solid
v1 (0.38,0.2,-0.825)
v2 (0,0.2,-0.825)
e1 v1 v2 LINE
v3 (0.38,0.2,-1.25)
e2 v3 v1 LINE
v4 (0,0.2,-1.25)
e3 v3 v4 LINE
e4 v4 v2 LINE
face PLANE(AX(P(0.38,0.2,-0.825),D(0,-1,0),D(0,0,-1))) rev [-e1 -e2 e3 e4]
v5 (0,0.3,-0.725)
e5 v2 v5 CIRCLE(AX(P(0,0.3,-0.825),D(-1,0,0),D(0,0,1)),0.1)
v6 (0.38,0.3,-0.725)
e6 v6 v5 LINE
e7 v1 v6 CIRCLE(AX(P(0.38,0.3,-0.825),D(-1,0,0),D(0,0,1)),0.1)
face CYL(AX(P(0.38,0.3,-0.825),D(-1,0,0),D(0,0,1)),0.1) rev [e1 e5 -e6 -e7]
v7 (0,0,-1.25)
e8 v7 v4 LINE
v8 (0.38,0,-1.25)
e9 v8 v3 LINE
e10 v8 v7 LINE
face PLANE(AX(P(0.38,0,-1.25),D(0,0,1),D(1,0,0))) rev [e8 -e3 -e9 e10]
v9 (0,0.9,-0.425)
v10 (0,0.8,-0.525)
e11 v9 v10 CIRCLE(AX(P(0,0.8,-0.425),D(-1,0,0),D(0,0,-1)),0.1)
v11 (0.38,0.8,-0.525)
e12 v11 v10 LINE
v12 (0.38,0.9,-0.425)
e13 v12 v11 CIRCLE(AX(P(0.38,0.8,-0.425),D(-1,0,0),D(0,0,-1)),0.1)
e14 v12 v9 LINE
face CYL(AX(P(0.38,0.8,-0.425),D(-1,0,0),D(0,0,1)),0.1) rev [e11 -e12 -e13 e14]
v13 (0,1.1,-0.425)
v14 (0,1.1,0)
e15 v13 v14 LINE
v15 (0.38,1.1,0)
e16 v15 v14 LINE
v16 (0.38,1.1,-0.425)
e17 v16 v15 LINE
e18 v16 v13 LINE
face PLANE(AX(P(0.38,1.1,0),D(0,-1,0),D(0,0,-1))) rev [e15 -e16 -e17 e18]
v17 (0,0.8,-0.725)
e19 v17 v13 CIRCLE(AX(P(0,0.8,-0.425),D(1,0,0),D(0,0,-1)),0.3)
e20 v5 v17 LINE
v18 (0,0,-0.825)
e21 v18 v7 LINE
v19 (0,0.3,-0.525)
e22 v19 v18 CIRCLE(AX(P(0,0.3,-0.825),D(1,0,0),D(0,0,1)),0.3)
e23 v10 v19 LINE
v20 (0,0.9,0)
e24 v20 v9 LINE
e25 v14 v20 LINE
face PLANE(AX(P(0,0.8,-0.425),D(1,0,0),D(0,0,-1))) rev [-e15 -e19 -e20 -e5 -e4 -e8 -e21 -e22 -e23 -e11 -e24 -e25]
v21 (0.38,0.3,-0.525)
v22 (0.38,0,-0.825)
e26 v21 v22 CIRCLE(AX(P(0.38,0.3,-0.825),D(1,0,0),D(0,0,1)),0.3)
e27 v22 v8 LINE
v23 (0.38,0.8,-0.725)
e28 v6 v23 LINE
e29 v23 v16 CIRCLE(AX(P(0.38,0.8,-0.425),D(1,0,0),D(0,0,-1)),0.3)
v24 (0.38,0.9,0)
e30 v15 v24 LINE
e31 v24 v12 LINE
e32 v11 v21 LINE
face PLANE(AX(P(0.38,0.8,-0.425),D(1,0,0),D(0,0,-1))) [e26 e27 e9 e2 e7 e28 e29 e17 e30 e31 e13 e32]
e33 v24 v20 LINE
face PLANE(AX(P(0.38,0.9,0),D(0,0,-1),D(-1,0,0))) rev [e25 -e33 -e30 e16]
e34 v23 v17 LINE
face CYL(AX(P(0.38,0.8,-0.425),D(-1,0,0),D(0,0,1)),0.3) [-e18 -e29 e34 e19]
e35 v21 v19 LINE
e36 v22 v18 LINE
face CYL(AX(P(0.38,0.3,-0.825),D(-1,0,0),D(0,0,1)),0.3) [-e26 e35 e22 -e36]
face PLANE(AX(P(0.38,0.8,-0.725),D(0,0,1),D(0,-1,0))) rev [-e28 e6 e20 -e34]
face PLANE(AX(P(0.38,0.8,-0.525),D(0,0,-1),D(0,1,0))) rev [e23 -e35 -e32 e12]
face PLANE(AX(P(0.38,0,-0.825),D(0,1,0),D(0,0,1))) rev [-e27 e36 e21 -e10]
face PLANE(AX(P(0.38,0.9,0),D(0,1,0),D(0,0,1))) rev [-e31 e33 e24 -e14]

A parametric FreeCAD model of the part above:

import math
import FreeCAD as App
import Part
import Sketcher

doc = App.newDocument("Part")
body = doc.addObject("PartDesign::Body", "Body")

sketch1 = body.newObject("Sketcher::SketchObject", "Sketch")
sketch1.AttachmentSupport = (doc.getObject("YZ_Plane"), [""])
sketch1.MapMode = "FlatFace"
sketch1.addGeometry([
    Part.LineSegment(App.Vector(0.9, 0, 0), App.Vector(0.9, -0.42, 0)),
    Part.ArcOfCircle(Part.Circle(App.Vector(0.8, -0.42, 0), App.Vector(0, 0, 1), 0.1), math.radians(-90), math.radians(0)),
    Part.LineSegment(App.Vector(0.8, -0.53, 0), App.Vector(0.3, -0.53, 0)),
    Part.ArcOfCircle(Part.Circle(App.Vector(0.3, -0.83, 0), App.Vector(0, 0, 1), 0.3), math.radians(90), math.radians(180)),
    Part.LineSegment(App.Vector(0, -0.82, 0), App.Vector(0, -1.25, 0)),
    Part.LineSegment(App.Vector(0, -1.25, 0), App.Vector(0.2, -1.25, 0)),
    Part.LineSegment(App.Vector(0.2, -1.25, 0), App.Vector(0.2, -0.82, 0)),
    Part.ArcOfCircle(Part.Circle(App.Vector(0.3, -0.82, 0), App.Vector(0, 0, 1), 0.1), math.radians(90), math.radians(180)),
    Part.LineSegment(App.Vector(0.3, -0.72, 0), App.Vector(0.8, -0.72, 0)),
    Part.ArcOfCircle(Part.Circle(App.Vector(0.8, -0.42, 0), App.Vector(0, 0, 1), 0.3), math.radians(-90), math.radians(0)),
    Part.LineSegment(App.Vector(1.1, -0.42, 0), App.Vector(1.1, 0, 0)),
    Part.LineSegment(App.Vector(1.1, 0, 0), App.Vector(0.9, 0, 0)),
], False)
sketch1.addConstraint([
    Sketcher.Constraint("Tangent", 0, 2, 1, 2),
    Sketcher.Constraint("Tangent", 1, 1, 2, 1),
    Sketcher.Constraint("Tangent", 2, 2, 3, 1),
    Sketcher.Constraint("Tangent", 3, 2, 4, 1),
    Sketcher.Constraint("Coincident", 4, 2, 5, 1),
    Sketcher.Constraint("Coincident", 5, 2, 6, 1),
    Sketcher.Constraint("Tangent", 6, 2, 7, 2),
    Sketcher.Constraint("Tangent", 7, 1, 8, 1),
    Sketcher.Constraint("Tangent", 8, 2, 9, 1),
    Sketcher.Constraint("Tangent", 9, 2, 10, 1),
    Sketcher.Constraint("Coincident", 10, 2, 11, 1),
    Sketcher.Constraint("Coincident", 11, 2, 0, 1),
    Sketcher.Constraint("Vertical", 0),
    Sketcher.Constraint("Horizontal", 2),
    Sketcher.Constraint("Vertical", 4),
    Sketcher.Constraint("Horizontal", 5),
    Sketcher.Constraint("Vertical", 6),
    Sketcher.Constraint("Horizontal", 8),
    Sketcher.Constraint("Vertical", 10),
    Sketcher.Constraint("Horizontal", 11),
    Sketcher.Constraint("Coincident", 7, 3, 3, 3),
    Sketcher.Constraint("Coincident", 9, 3, 1, 3),
    Sketcher.Constraint("Equal", 1, 7),
    Sketcher.Constraint("PointOnObject", 3, 2, -2),
    Sketcher.Constraint("PointOnObject", 10, 2, -1),
    Sketcher.Constraint("Equal", 0, 4),
    Sketcher.Constraint("Radius", 1, 0.1),
    Sketcher.Constraint("Radius", 3, 0.3),
    Sketcher.Constraint("DistanceX", 2, 2, 2, 1, 0.5),
    Sketcher.Constraint("DistanceY", 0, 2, 0, 1, 0.425),
])
pad1 = body.newObject("PartDesign::Pad", "Pad")
pad1.Profile = sketch1
pad1.Length = 0.38

doc.recompute()
